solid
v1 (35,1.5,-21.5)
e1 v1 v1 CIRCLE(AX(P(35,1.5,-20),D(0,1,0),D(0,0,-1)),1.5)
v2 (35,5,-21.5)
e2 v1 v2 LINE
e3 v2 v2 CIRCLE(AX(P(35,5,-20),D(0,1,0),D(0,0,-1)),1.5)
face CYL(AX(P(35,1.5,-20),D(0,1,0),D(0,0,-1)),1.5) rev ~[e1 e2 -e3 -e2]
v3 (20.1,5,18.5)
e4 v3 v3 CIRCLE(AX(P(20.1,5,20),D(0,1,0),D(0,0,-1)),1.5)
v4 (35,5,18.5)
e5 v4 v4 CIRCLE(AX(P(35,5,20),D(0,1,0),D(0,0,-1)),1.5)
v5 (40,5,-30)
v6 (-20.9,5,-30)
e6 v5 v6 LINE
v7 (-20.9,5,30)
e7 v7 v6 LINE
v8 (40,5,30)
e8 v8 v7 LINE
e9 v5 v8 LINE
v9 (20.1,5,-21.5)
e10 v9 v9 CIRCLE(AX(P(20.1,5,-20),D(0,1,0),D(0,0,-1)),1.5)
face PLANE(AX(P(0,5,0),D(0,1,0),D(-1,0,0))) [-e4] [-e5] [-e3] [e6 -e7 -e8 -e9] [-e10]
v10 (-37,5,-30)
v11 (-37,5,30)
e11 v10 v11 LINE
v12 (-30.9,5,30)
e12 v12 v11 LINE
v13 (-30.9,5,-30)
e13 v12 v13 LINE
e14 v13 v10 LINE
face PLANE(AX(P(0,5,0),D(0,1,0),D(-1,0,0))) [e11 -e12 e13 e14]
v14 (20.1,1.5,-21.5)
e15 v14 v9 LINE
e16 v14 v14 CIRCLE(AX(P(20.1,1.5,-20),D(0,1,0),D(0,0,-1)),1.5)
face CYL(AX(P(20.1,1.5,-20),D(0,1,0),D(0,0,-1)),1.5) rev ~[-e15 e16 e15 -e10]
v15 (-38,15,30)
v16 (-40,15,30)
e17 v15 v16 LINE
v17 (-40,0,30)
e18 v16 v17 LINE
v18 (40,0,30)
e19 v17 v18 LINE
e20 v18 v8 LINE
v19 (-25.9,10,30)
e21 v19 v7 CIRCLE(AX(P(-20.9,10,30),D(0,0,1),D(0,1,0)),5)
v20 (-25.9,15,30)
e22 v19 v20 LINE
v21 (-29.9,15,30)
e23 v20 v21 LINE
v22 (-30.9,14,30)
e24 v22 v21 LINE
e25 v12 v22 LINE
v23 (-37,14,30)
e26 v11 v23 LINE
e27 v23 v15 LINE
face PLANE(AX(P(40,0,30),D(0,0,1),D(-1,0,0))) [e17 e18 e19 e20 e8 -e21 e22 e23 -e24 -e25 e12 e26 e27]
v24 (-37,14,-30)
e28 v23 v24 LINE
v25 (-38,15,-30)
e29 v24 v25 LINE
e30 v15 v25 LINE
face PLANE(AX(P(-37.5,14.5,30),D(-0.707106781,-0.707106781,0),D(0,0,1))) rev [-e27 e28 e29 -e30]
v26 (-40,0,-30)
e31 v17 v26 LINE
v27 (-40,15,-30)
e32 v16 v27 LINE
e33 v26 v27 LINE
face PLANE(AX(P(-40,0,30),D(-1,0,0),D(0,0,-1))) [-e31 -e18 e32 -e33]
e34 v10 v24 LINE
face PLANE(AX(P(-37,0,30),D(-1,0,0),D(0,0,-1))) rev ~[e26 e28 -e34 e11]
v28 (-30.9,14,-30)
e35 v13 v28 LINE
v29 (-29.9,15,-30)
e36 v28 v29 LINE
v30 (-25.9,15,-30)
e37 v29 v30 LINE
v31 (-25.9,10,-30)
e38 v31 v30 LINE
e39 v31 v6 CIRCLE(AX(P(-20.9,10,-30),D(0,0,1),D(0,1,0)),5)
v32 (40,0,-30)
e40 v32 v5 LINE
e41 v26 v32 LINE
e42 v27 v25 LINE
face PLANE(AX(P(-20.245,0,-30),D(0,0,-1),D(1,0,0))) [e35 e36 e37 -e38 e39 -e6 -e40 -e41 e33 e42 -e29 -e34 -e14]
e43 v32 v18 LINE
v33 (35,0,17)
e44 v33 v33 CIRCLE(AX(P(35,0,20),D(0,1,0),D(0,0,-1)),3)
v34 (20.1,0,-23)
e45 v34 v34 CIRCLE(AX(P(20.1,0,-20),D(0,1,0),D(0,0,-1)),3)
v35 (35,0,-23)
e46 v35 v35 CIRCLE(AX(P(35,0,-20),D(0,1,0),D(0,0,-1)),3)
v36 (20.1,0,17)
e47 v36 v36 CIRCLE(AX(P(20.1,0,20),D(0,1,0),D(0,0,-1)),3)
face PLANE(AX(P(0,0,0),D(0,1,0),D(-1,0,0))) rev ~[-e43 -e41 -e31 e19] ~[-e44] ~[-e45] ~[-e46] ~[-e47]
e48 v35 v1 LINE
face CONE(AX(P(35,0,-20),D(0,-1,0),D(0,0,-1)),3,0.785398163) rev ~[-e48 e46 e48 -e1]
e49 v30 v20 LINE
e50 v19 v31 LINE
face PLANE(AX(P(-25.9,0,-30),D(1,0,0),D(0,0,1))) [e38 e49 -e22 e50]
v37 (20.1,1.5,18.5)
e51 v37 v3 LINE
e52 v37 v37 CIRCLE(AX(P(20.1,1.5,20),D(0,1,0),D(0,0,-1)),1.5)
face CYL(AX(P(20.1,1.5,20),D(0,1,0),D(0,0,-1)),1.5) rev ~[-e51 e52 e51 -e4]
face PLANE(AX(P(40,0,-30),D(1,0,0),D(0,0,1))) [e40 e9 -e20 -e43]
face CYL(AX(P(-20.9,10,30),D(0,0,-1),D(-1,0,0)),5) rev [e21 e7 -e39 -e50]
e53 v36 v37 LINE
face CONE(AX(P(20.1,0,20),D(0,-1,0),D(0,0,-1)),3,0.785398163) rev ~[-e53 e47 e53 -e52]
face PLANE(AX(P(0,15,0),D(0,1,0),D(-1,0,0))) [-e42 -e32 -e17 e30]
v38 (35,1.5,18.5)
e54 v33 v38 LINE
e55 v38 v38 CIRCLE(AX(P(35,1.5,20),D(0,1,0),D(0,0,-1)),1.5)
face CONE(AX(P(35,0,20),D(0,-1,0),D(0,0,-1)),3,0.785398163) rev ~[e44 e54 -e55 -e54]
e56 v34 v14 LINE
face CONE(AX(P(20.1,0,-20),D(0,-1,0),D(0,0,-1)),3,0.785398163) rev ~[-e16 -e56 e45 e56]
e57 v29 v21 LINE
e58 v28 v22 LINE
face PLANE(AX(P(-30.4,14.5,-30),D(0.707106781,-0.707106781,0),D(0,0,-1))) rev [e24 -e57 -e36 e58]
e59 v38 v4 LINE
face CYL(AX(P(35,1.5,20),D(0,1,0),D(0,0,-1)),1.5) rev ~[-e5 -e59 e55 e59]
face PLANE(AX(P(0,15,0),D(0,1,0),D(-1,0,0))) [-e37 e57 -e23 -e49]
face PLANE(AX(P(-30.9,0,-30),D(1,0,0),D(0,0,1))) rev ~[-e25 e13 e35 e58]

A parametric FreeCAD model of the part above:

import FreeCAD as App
import Part
import Sketcher

V = App.Vector
Q = App.Units.Quantity


def edges_at(feature, points):
    """Names of the edges that pass closest to the given points."""
    edges = feature.Shape.Edges
    near = lambda p: min(range(len(edges)), key=lambda i: edges[i].distToShape(Part.Vertex(*p))[0])
    return sorted({f"Edge{near(p) + 1}" for p in points})


def add_polygon(sketch, points):
    """Adds a closed chain of lines whose ends are joined by coincident constraints."""
    first, n = sketch.GeometryCount, len(points)
    for a, b in zip(points, points[1:] + points[:1]):
        sketch.addGeometry(Part.LineSegment(App.Vector(*a, 0), App.Vector(*b, 0)), False)
    for i in range(n):
        sketch.addConstraint(Sketcher.Constraint("Coincident", first + i, 2, first + (i + 1) % n, 1))

doc = App.newDocument("Part")
body = doc.addObject("PartDesign::Body", "Body")

sketch1 = doc.addObject("Sketcher::SketchObject", "Sketch")
body.addObject(sketch1)
sketch1.AttachmentSupport = (doc.XZ_Plane, [""])
sketch1.MapMode = "FlatFace"
add_polygon(sketch1, [(40, 30), (40, -30), (-40, -30), (-40, 30)])
sketch1.addConstraint(Sketcher.Constraint("Vertical", 0))
sketch1.addConstraint(Sketcher.Constraint("Horizontal", 1))
sketch1.addConstraint(Sketcher.Constraint("Vertical", 2))
sketch1.addConstraint(Sketcher.Constraint("Horizontal", 3))
sketch1.addConstraint(Sketcher.Constraint("Symmetric", 0, 2, 2, 2, -1, 1))
sketch1.addConstraint(Sketcher.Constraint("DistanceX", 1, 2, 1, 1, Q("80 mm")))
sketch1.addConstraint(Sketcher.Constraint("DistanceY", 0, 2, 0, 1, Q("60 mm")))
pad1 = doc.addObject("PartDesign::Pad", "Pad")
body.addObject(pad1)
pad1.Profile = sketch1
pad1.Length = 5
pad1.Reversed = True

sketch2 = doc.addObject("Sketcher::SketchObject", "Sketch001")
body.addObject(sketch2)
sketch2.AttachmentSupport = (doc.XZ_Plane, [""])
sketch2.MapMode = "FlatFace"
add_polygon(sketch2, [(-30.9, 30), (-25.9, 30), (-25.9, -30), (-30.9, -30)])
add_polygon(sketch2, [(-40, 30), (-37, 30), (-37, -30), (-40, -30)])
sketch2.addConstraint(Sketcher.Constraint("Horizontal", 0))
sketch2.addConstraint(Sketcher.Constraint("Vertical", 1))
sketch2.addConstraint(Sketcher.Constraint("Horizontal", 2))
sketch2.addConstraint(Sketcher.Constraint("Vertical", 3))
sketch2.addConstraint(Sketcher.Constraint("Horizontal", 4))
sketch2.addConstraint(Sketcher.Constraint("Vertical", 5))
sketch2.addConstraint(Sketcher.Constraint("Horizontal", 6))
sketch2.addConstraint(Sketcher.Constraint("Vertical", 7))
sketch2.addConstraint(Sketcher.Constraint("Horizontal", 3, 2, 4, 2))
sketch2.addConstraint(Sketcher.Constraint("Horizontal", 2, 2, 5, 2))
sketch2.addConstraint(Sketcher.Constraint("DistanceX", 0, 1, 0, 2, Q("5 mm")))
sketch2.addConstraint(Sketcher.Constraint("DistanceX", 4, 1, 4, 2, Q("3 mm")))
sketch2.addConstraint(Sketcher.Constraint("DistanceY", 1, 2, 1, 1, Q("60 mm")))
sketch2.addConstraint(Sketcher.Constraint("DistanceX", 4, 2, 3, 2, Q("6.1 mm")))
sketch2.addConstraint(Sketcher.Constraint("DistanceY", -1, 1, 0, 2, Q("30 mm")))
sketch2.addConstraint(Sketcher.Constraint("DistanceX", 4, 2, -1, 1, Q("37 mm")))
pad2 = doc.addObject("PartDesign::Pad", "Pad001")
body.addObject(pad2)
pad2.Profile = sketch2
pad2.Length = 15
pad2.Reversed = True
doc.recompute()

chamfer = doc.addObject("PartDesign::Chamfer", "Chamfer")
body.addObject(chamfer)
chamfer.Base = (pad2, edges_at(pad2, [(-37, 15, 0), (-30.9, 15, 0)]))
chamfer.Size = 1
doc.recompute()

fillet = doc.addObject("PartDesign::Fillet", "Fillet")
body.addObject(fillet)
fillet.Base = (chamfer, edges_at(chamfer, [(-25.9, 5, 0)]))
fillet.Radius = 5

sketch3 = doc.addObject("Sketcher::SketchObject", "Sketch002")
body.addObject(sketch3)
sketch3.AttachmentSupport = (doc.XZ_Plane, [""])
sketch3.MapMode = "FlatFace"
sketch3.addGeometry(Part.Circle(V(35, 20, 0), V(0, 0, 1), 1.5), False)
sketch3.addGeometry(Part.Circle(V(35, -20, 0), V(0, 0, 1), 1.5), False)
sketch3.addGeometry(Part.Circle(V(20.1, 20, 0), V(0, 0, 1), 1.5), False)
sketch3.addGeometry(Part.Circle(V(20.1, -20, 0), V(0, 0, 1), 1.5), False)
sketch3.addConstraint(Sketcher.Constraint("Equal", 0, 1))
sketch3.addConstraint(Sketcher.Constraint("Equal", 1, 2))
sketch3.addConstraint(Sketcher.Constraint("Equal", 2, 3))
sketch3.addConstraint(Sketcher.Constraint("Symmetric", 0, 3, 1, 3, -1))
sketch3.addConstraint(Sketcher.Constraint("Symmetric", 2, 3, 3, 3, -1))
sketch3.addConstraint(Sketcher.Constraint("Horizontal", 0, 3, 2, 3))
sketch3.addConstraint(Sketcher.Constraint("Diameter", 0, Q("3 mm")))
sketch3.addConstraint(Sketcher.Constraint("DistanceX", -1, 1, 0, 3, Q("35 mm")))
sketch3.addConstraint(Sketcher.Constraint("DistanceY", -1, 1, 0, 3, Q("20 mm")))
sketch3.addConstraint(Sketcher.Constraint("DistanceX", -1, 1, 2, 3, Q("20.1 mm")))
doc.recompute()
hole = doc.addObject("PartDesign::Hole", "Hole")
body.addObject(hole)
hole.Profile = sketch3
hole.ThreadType = "None"
hole.Diameter = 3
hole.DepthType = "ThroughAll"
hole.HoleCutType = "Countersink"
hole.HoleCutDiameter = 6
hole.HoleCutCountersinkAngle = 90

doc.recompute()
